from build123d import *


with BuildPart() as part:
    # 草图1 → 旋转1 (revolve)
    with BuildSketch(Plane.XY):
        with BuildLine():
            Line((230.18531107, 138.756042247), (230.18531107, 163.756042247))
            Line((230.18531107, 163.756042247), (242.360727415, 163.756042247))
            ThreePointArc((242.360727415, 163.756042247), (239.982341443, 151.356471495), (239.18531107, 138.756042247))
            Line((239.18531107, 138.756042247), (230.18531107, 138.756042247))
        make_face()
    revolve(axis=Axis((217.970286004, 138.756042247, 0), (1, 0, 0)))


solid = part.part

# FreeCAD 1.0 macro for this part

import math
import FreeCAD as App
import Part
import Sketcher

V = App.Vector
Q = App.Units.Quantity

doc = App.newDocument("Part")
params = doc.addObject("Spreadsheet::Sheet", "Params")
for row, (alias, value) in enumerate([
    ("sketch1_radius", "100 mm"),
    ("sketch1_width", "9 mm"),
    ("sketch1_height", "25 mm"),
    ("revolution_angle", "360 deg"),
], start=1):
    params.set(f"A{row}", alias)
    params.set(f"B{row}", "=" + value)
    params.setAlias(f"B{row}", alias)

body = doc.addObject("PartDesign::Body", "Body")

# Sketch on XY plane
sketch1 = body.newObject("Sketcher::SketchObject", "Sketch")
sketch1.AttachmentSupport = (doc.getObject("XY_Plane"), [""])
sketch1.MapMode = "FlatFace"
sketch1.addGeometry([
    Part.LineSegment(V(230.185311, 163.756042, 0), V(230.185311, 138.756042, 0)),
    Part.LineSegment(V(230.185311, 138.756042, 0), V(239.185311, 138.756042, 0)),
    Part.ArcOfCircle(Part.Circle(V(339.185311, 138.756042, 0), V(0, 0, 1), 100), math.radians(165.522488), math.radians(180)),
    Part.LineSegment(V(242.360727, 163.756042, 0), V(230.185311, 163.756042, 0)),
], False)
sketch1.addGeometry(Part.LineSegment(V(230.185311, 138.756042, 0), V(339.185311, 138.756042, 0)), True)  # axis
sketch1.addConstraint([
    Sketcher.Constraint("Coincident", 0, 2, 1, 1),
    Sketcher.Constraint("Coincident", 1, 2, 2, 2),
    Sketcher.Constraint("Coincident", 2, 1, 3, 1),
    Sketcher.Constraint("Coincident", 3, 2, 0, 1),
    Sketcher.Constraint("Vertical", 0),
    Sketcher.Constraint("Horizontal", 1),
    Sketcher.Constraint("Horizontal", 3),
    Sketcher.Constraint("Horizontal", 4),
    Sketcher.Constraint("Coincident", 4, 1, 0, 2),
    Sketcher.Constraint("Coincident", 4, 2, 2, 3),
    Sketcher.Constraint("Radius", 2, Q("100 mm")),
    Sketcher.Constraint("DistanceX", 1, 1, 1, 2, Q("9 mm")),
    Sketcher.Constraint("DistanceY", 0, 2, 0, 1, Q("25 mm")),
    Sketcher.Constraint("DistanceX", -1, 1, 2, 3, Q("339.185311 mm")),
    Sketcher.Constraint("DistanceY", -1, 1, 2, 3, Q("138.756042 mm")),
])
sketch1.setExpression("Constraints[10]", "Params.sketch1_radius")
sketch1.setExpression("Constraints[11]", "Params.sketch1_width")
sketch1.setExpression("Constraints[12]", "Params.sketch1_height")
revolution = body.newObject("PartDesign::Revolution", "Revolution")
revolution.Profile = sketch1
revolution.ReferenceAxis = (sketch1, ["Axis0"])
revolution.setExpression("Angle", "Params.revolution_angle")

doc.recompute()
